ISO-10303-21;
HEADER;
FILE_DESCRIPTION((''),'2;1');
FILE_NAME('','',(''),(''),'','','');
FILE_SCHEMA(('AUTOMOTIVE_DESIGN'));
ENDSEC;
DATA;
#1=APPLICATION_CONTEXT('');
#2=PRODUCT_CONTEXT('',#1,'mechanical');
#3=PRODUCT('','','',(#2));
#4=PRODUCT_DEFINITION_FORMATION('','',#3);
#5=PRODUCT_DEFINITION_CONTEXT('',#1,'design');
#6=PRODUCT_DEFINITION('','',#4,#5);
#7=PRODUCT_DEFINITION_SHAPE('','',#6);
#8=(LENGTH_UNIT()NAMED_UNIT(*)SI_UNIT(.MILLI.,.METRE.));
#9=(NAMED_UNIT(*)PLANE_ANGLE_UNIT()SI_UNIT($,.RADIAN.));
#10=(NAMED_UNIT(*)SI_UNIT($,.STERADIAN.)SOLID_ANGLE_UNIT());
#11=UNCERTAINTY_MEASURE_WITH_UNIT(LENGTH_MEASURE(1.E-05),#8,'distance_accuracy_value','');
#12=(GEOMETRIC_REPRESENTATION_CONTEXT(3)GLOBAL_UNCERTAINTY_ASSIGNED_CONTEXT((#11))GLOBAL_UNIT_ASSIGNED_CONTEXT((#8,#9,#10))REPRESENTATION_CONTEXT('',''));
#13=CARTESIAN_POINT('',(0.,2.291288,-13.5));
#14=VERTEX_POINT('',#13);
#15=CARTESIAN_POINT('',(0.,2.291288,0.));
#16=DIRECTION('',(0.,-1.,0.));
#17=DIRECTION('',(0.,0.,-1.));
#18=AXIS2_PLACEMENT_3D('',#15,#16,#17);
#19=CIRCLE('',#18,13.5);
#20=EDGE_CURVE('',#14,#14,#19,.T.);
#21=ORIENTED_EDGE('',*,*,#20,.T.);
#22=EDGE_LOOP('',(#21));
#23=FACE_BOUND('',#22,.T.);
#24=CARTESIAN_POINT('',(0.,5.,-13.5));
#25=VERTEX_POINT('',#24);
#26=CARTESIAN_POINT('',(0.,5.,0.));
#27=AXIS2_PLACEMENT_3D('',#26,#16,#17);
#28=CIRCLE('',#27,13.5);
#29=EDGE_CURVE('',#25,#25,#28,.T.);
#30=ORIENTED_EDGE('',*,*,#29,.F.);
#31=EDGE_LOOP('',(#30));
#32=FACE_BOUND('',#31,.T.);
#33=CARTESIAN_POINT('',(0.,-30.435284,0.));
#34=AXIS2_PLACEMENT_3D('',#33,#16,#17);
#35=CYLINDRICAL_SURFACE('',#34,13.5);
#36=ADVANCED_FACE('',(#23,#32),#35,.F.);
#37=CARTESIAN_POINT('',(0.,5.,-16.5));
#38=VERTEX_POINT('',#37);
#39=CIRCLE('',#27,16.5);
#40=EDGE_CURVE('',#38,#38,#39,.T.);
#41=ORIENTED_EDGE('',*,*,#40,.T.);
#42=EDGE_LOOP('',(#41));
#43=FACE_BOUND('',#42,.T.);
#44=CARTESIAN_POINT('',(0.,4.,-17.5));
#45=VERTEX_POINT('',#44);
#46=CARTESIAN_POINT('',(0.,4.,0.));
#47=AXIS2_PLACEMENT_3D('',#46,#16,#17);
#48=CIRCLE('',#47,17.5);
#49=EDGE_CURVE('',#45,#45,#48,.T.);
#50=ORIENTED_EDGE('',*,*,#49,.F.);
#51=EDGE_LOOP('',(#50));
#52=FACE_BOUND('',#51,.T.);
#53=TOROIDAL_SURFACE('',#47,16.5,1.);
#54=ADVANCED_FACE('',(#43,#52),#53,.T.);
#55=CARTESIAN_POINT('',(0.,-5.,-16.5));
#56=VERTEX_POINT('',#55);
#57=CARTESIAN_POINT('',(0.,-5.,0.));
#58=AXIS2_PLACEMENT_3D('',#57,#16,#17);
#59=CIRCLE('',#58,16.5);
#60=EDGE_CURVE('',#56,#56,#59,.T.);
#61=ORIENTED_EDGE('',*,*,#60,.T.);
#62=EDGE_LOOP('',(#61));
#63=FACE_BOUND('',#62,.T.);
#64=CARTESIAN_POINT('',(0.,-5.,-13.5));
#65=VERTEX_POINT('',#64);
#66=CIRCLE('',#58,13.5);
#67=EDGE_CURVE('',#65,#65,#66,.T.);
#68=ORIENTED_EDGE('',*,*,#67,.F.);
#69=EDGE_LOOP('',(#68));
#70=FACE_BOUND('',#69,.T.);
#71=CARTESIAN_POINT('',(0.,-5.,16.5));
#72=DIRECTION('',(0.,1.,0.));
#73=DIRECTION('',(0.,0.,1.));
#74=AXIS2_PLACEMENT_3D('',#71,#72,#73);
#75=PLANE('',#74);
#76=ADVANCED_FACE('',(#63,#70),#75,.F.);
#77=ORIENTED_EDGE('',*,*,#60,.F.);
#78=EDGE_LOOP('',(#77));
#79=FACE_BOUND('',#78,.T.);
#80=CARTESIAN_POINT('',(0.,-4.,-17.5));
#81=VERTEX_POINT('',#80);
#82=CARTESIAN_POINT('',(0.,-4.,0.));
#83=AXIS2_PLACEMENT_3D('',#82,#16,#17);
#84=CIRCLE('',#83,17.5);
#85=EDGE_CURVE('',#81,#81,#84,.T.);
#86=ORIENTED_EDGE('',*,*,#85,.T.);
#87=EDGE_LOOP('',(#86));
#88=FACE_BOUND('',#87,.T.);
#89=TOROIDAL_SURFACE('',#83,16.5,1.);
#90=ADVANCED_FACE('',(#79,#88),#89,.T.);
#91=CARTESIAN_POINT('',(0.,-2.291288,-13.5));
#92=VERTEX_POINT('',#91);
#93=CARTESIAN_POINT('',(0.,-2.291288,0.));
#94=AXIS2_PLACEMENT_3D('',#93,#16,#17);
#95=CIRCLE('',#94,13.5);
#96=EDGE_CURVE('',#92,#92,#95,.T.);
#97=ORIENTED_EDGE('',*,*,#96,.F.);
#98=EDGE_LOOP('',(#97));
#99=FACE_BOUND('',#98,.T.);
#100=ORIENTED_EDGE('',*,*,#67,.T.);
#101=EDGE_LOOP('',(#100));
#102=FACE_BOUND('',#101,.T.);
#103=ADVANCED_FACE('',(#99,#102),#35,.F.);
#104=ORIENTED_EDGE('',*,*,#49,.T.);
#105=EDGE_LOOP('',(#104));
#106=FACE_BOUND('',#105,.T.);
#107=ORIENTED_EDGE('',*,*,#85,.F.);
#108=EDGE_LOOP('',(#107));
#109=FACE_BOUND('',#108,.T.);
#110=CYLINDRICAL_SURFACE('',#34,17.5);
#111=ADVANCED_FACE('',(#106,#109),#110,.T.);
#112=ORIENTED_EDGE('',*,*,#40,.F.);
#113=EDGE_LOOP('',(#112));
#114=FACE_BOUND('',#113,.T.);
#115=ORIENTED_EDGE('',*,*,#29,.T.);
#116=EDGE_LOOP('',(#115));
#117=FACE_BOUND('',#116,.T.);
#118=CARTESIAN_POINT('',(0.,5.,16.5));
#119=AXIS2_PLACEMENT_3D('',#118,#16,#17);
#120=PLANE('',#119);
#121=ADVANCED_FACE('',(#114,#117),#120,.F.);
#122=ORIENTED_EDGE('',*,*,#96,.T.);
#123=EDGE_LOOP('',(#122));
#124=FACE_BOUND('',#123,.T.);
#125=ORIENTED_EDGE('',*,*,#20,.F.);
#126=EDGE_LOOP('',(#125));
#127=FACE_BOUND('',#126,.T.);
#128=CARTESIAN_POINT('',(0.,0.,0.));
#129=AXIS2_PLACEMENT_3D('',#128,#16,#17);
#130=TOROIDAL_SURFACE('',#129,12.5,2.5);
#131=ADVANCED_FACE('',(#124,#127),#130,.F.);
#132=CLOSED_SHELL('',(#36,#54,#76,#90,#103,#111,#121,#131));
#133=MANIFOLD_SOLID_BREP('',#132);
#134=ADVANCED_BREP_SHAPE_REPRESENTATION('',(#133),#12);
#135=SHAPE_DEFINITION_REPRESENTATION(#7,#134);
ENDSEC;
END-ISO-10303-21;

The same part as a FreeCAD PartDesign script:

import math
import FreeCAD as App
import Part
import Sketcher
from FreeCAD import Vector
Q = App.Units.Quantity

doc = App.newDocument("Part")
params = doc.addObject("Spreadsheet::Sheet", "Params")
for row, (alias, value) in enumerate([
    ("sketch1_radius", "1 mm"),
    ("sketch1_radius2", "2.5 mm"),
    ("sketch1_width", "8 mm"),
    ("sketch1_height", "3 mm"),
    ("revolution_angle", "360 deg"),
], start=1):
    params.set(f"A{row}", alias)
    params.set(f"B{row}", "=" + value)
    params.setAlias(f"B{row}", alias)

body = doc.addObject("PartDesign::Body", "Body")

# Sketch on YZ plane
sketch1 = doc.addObject("Sketcher::SketchObject", "Sketch")
body.addObject(sketch1)
sketch1.AttachmentSupport = (doc.YZ_Plane, [""])
sketch1.MapMode = "FlatFace"
sketch1.addGeometry([
    Part.LineSegment(Vector(4, 17.5, 0), Vector(-4, 17.5, 0)),  # 0
    Part.ArcOfCircle(Part.Circle(Vector(-4, 16.5, 0), Vector(0, 0, 1), 1), math.radians(90), math.radians(180)),  # 1
    Part.LineSegment(Vector(-5, 16.5, 0), Vector(-5, 13.5, 0)),  # 2
    Part.LineSegment(Vector(-5, 13.5, 0), Vector(-2.291288, 13.5, 0)),  # 3
    Part.ArcOfCircle(Part.Circle(Vector(0, 12.5, 0), Vector(0, 0, 1), 2.5), math.radians(23.578178), math.radians(156.421822)),  # 4
    Part.LineSegment(Vector(2.291288, 13.5, 0), Vector(5, 13.5, 0)),  # 5
    Part.LineSegment(Vector(5, 13.5, 0), Vector(5, 16.5, 0)),  # 6
    Part.ArcOfCircle(Part.Circle(Vector(4, 16.5, 0), Vector(0, 0, 1), 1), math.radians(0), math.radians(90)),  # 7
], False)
sketch1.addConstraint([
    Sketcher.Constraint("Tangent", 0, 2, 1, 1),
    Sketcher.Constraint("Tangent", 1, 2, 2, 1),
    Sketcher.Constraint("Coincident", 2, 2, 3, 1),
    Sketcher.Constraint("Coincident", 3, 2, 4, 2),
    Sketcher.Constraint("Coincident", 4, 1, 5, 1),
    Sketcher.Constraint("Coincident", 5, 2, 6, 1),
    Sketcher.Constraint("Tangent", 6, 2, 7, 1),
    Sketcher.Constraint("Tangent", 7, 2, 0, 1),
    Sketcher.Constraint("Horizontal", 0),
    Sketcher.Constraint("Vertical", 2),
    Sketcher.Constraint("Horizontal", 3),
    Sketcher.Constraint("Horizontal", 5),
    Sketcher.Constraint("Vertical", 6),
    Sketcher.Constraint("Equal", 1, 7),
    Sketcher.Constraint("Symmetric", 3, 2, 4, 1, -2),
    Sketcher.Constraint("Equal", 3, 5),
    Sketcher.Constraint("Radius", 1, Q("1 mm")),
    Sketcher.Constraint("Radius", 4, Q("2.5 mm")),
    Sketcher.Constraint("DistanceX", 0, 2, 0, 1, Q("8 mm")),
    Sketcher.Constraint("DistanceY", 2, 2, 2, 1, Q("3 mm")),
    Sketcher.Constraint("DistanceY", 4, 3, 1, 3, Q("4 mm")),
    Sketcher.Constraint("DistanceY", -1, 1, 1, 3, Q("16.5 mm")),
])
sketch1.setExpression("Constraints[16]", "Params.sketch1_radius")
sketch1.setExpression("Constraints[17]", "Params.sketch1_radius2")
sketch1.setExpression("Constraints[18]", "Params.sketch1_width")
sketch1.setExpression("Constraints[19]", "Params.sketch1_height")
revolution = doc.addObject("PartDesign::Revolution", "Revolution")
body.addObject(revolution)
revolution.Profile = sketch1
revolution.ReferenceAxis = (sketch1, ["H_Axis"])
revolution.setExpression("Angle", "Params.revolution_angle")

doc.recompute()
